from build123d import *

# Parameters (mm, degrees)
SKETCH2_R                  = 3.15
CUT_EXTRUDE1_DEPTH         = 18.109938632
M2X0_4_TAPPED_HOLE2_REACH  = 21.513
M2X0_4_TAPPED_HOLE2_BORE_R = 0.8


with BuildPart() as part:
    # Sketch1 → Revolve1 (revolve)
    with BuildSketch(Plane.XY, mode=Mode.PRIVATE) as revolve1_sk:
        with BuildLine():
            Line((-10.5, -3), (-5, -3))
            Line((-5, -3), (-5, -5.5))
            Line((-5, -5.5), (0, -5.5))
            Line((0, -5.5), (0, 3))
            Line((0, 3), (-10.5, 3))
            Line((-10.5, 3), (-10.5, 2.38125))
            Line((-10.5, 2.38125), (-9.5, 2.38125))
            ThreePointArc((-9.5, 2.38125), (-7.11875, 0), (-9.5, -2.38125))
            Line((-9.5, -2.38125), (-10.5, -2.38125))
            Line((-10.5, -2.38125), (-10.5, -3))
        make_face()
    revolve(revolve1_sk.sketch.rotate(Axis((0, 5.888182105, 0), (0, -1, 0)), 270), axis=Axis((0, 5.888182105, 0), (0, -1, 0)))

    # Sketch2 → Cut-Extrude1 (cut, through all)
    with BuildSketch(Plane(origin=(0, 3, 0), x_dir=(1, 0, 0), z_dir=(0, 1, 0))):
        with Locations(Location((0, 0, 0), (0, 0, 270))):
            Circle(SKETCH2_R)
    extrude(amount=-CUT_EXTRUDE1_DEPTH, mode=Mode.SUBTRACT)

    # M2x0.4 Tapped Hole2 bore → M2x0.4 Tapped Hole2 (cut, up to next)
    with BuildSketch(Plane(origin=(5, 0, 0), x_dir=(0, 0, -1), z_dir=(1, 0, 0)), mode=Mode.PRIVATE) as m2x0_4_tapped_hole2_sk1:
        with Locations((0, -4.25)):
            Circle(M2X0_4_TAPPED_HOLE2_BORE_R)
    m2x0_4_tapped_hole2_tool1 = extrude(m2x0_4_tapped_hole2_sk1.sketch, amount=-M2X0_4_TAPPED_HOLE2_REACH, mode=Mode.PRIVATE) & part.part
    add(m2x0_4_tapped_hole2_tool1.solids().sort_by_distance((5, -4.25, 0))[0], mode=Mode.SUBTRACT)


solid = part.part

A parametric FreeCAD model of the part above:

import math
import FreeCAD as App
import Part
import Sketcher
from FreeCAD import Vector

doc = App.newDocument("Part")
body = doc.addObject("PartDesign::Body", "Body")

sketch1 = body.newObject("Sketcher::SketchObject", "Sketch")
sketch1.AttachmentSupport = (doc.getObject("XY_Plane"), [""])
sketch1.MapMode = "FlatFace"
sketch1.addGeometry([
    Part.LineSegment(Vector(-10.5, -3, 0), Vector(-5, -3, 0)),
    Part.LineSegment(Vector(-5, -3, 0), Vector(-5, -5.5, 0)),
    Part.LineSegment(Vector(-5, -5.5, 0), Vector(0, -5.5, 0)),
    Part.LineSegment(Vector(0, -5.5, 0), Vector(0, 3, 0)),
    Part.LineSegment(Vector(0, 3, 0), Vector(-10.5, 3, 0)),
    Part.LineSegment(Vector(-10.5, 3, 0), Vector(-10.5, 2.38125, 0)),
    Part.LineSegment(Vector(-10.5, 2.38125, 0), Vector(-9.5, 2.38125, 0)),
    Part.ArcOfCircle(Part.Circle(Vector(-9.5, 0, 0), Vector(0, 0, 1), 2.38125), math.radians(-90), math.radians(90)),
    Part.LineSegment(Vector(-9.5, -2.38125, 0), Vector(-10.5, -2.38125, 0)),
    Part.LineSegment(Vector(-10.5, -2.38125, 0), Vector(-10.5, -3, 0)),
], False)
sketch1.addConstraint([
    Sketcher.Constraint("Coincident", 0, 2, 1, 1),
    Sketcher.Constraint("Coincident", 1, 2, 2, 1),
    Sketcher.Constraint("Coincident", 2, 2, 3, 1),
    Sketcher.Constraint("Coincident", 3, 2, 4, 1),
    Sketcher.Constraint("Coincident", 4, 2, 5, 1),
    Sketcher.Constraint("Coincident", 5, 2, 6, 1),
    Sketcher.Constraint("Tangent", 6, 2, 7, 2),
    Sketcher.Constraint("Tangent", 7, 1, 8, 1),
    Sketcher.Constraint("Coincident", 8, 2, 9, 1),
    Sketcher.Constraint("Coincident", 9, 2, 0, 1),
    Sketcher.Constraint("Horizontal", 0),
    Sketcher.Constraint("Vertical", 1),
    Sketcher.Constraint("Horizontal", 2),
    Sketcher.Constraint("Vertical", 3),
    Sketcher.Constraint("Horizontal", 4),
    Sketcher.Constraint("Vertical", 5),
    Sketcher.Constraint("Horizontal", 6),
    Sketcher.Constraint("Horizontal", 8),
    Sketcher.Constraint("Vertical", 9),
    Sketcher.Constraint("Symmetric", 5, 2, 8, 2, -1),
    Sketcher.Constraint("PointOnObject", 2, 2, -2),
    Sketcher.Constraint("Equal", 5, 9),
    Sketcher.Constraint("DistanceX", 2, 1, 2, 2, 5.0),
    Sketcher.Constraint("DistanceX", 6, 1, 6, 2, 1.0),
    Sketcher.Constraint("DistanceX", 0, 1, 0, 2, 5.5),
    Sketcher.Constraint("DistanceY", 1, 2, 1, 1, 2.5),
    Sketcher.Constraint("DistanceY", 3, 1, 3, 2, 8.5),
    Sketcher.Constraint("Radius", 7, 2.38125),
])
revolution = body.newObject("PartDesign::Revolution", "Revolution")
revolution.Profile = sketch1
revolution.ReferenceAxis = (sketch1, ["V_Axis"])
revolution.Angle = 360

sketch2 = body.newObject("Sketcher::SketchObject", "Sketch001")
sketch2.AttachmentSupport = (doc.getObject("XZ_Plane"), [""])
sketch2.MapMode = "FlatFace"
sketch2.AttachmentOffset = App.Placement(Vector(0, 0, -3), App.Rotation())
sketch2.addGeometry(Part.Circle(Vector(0, 0, 0), Vector(0, 0, 1), 3.15), False)
sketch2.addConstraint([
    Sketcher.Constraint("Coincident", 0, 3, -1, 1),
    Sketcher.Constraint("Diameter", 0, 6.3),
])
pocket1 = body.newObject("PartDesign::Pocket", "Pocket")
pocket1.Profile = sketch2
pocket1.Type = "ThroughAll"
pocket1.Reversed = True

sketch3 = body.newObject("Sketcher::SketchObject", "Sketch002")
sketch3.AttachmentSupport = (doc.getObject("YZ_Plane"), [""])
sketch3.MapMode = "FlatFace"
sketch3.AttachmentOffset = App.Placement(Vector(0, 0, 5), App.Rotation())
sketch3.addGeometry(Part.Circle(Vector(-4.25, 0, 0), Vector(0, 0, 1), 0.8), False)
sketch3.addConstraint([
    Sketcher.Constraint("PointOnObject", 0, 3, -1),
    Sketcher.Constraint("Diameter", 0, 1.6),
    Sketcher.Constraint("DistanceX", 0, 3, -1, 1, 4.25),
])
pocket2 = body.newObject("PartDesign::Pocket", "Pocket001")
pocket2.Profile = sketch3
pocket2.Length = 1.95328

doc.recompute()
